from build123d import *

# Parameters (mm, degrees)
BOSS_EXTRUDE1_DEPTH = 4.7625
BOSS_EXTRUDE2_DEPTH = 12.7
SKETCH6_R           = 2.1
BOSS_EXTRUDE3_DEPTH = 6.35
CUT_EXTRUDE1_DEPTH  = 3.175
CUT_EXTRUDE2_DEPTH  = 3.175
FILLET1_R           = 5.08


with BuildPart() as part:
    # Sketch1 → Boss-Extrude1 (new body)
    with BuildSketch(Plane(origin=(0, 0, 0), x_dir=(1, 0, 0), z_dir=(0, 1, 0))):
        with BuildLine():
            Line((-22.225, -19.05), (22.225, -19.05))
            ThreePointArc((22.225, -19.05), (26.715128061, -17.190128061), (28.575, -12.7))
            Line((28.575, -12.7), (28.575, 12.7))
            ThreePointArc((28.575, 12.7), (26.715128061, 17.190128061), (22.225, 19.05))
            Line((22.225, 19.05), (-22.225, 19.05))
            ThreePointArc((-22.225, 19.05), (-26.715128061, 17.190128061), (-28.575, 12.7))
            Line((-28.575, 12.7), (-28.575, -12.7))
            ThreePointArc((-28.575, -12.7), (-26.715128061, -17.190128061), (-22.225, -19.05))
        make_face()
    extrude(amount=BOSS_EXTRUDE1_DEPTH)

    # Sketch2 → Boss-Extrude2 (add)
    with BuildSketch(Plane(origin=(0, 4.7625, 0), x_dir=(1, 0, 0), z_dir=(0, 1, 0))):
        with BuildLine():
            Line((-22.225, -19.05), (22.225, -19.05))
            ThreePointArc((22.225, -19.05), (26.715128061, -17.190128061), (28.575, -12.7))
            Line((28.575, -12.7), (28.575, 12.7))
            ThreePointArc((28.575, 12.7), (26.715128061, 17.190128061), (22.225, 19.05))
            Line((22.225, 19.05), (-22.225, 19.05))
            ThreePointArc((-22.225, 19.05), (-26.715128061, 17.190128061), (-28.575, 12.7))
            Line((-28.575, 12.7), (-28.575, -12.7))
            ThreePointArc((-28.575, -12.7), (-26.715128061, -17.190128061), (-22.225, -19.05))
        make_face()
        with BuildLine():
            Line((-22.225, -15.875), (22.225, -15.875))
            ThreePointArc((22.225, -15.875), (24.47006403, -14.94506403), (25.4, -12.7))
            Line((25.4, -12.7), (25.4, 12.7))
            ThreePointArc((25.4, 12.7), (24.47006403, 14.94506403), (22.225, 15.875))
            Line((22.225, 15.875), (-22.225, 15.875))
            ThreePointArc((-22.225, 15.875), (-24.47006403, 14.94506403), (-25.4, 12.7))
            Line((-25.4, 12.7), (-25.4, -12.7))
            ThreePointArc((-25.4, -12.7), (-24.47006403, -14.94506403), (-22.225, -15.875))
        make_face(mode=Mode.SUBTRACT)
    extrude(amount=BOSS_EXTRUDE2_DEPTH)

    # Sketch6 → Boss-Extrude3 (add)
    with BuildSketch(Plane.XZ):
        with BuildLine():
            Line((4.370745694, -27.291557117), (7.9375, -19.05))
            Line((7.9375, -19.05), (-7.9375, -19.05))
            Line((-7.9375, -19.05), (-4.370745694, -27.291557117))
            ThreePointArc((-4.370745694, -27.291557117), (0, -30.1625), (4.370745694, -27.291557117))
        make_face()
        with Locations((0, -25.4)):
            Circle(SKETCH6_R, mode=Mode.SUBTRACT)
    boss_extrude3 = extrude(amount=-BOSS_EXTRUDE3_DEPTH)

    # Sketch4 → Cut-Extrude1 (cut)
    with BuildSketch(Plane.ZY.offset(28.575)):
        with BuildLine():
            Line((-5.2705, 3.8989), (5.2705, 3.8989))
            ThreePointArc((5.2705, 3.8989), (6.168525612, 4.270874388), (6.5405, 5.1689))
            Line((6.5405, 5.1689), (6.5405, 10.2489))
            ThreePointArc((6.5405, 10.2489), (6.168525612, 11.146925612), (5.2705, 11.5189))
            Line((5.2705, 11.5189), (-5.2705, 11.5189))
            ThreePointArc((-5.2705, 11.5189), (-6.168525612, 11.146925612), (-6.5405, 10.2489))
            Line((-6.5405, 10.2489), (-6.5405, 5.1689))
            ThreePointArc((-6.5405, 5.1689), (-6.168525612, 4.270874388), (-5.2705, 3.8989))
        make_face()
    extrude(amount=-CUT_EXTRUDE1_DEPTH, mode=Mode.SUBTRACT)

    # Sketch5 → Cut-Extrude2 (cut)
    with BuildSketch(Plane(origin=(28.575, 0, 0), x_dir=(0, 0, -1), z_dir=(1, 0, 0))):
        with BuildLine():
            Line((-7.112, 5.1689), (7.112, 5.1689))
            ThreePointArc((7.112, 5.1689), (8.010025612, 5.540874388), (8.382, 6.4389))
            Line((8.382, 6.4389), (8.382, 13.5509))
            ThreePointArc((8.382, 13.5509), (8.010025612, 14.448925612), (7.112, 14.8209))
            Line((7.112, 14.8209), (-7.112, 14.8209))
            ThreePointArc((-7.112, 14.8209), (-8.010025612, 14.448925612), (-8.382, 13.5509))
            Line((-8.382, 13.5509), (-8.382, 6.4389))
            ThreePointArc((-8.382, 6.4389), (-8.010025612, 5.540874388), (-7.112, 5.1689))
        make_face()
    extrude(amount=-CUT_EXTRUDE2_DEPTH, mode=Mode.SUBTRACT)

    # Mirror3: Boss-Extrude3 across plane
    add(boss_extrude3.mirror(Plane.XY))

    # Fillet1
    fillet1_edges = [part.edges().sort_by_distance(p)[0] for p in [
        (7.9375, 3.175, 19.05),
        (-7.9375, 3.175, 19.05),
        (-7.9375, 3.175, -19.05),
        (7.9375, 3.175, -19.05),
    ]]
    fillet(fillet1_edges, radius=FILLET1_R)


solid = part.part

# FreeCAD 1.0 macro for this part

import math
import FreeCAD as App
import Part
import Sketcher

V = App.Vector
Q = App.Units.Quantity


def edges_at(feature, points):
    """Names of the edges that pass closest to the given points."""
    edges = feature.Shape.Edges
    near = lambda p: min(range(len(edges)), key=lambda i: edges[i].distToShape(Part.Vertex(*p))[0])
    return sorted({f"Edge{near(p) + 1}" for p in points})

doc = App.newDocument("Part")
params = doc.addObject("Spreadsheet::Sheet", "Params")
for row, (alias, value) in enumerate([
    ("sketch1_height", "1 in"),
    ("sketch1_radius", "0.25 in"),
    ("pad1_length", "0.1875 in"),
    ("sketch2_height", "1 in"),
    ("sketch2_radius", "0.25 in"),
    ("sketch2_radius2", "0.125 in"),
    ("pad2_length", "0.5 in"),
    ("sketch3_radius", "0.1875 in"),
    ("sketch3_width", "0.625 in"),
    ("pad3_length", "0.25 in"),
    ("sketch4_radius", "0.05 in"),
    ("sketch4_width", "0.2 in"),
    ("sketch4_height", "0.415 in"),
    ("pocket1_length", "0.125 in"),
    ("sketch5_radius", "0.05 in"),
    ("sketch5_width", "0.28 in"),
    ("sketch5_height", "0.56 in"),
    ("pocket2_length", "0.125 in"),
    ("fillet_radius", "0.2 in"),
], start=1):
    params.set(f"A{row}", alias)
    params.set(f"B{row}", "=" + value)
    params.setAlias(f"B{row}", alias)

body = doc.addObject("PartDesign::Body", "Body")

sketch1 = body.newObject("Sketcher::SketchObject", "Sketch")
sketch1.AttachmentSupport = (doc.getObject("XZ_Plane"), [""])
sketch1.MapMode = "FlatFace"
sketch1.addGeometry(Part.LineSegment(V(-22, 19, 0), V(22, 19, 0)), False)
sketch1.addGeometry(Part.ArcOfCircle(Part.Circle(V(22, 13, 0), V(0, 0, 1), 6), math.radians(0), math.radians(90)), False)
sketch1.addGeometry(Part.LineSegment(V(29, 13, 0), V(29, -13, 0)), False)
sketch1.addGeometry(Part.ArcOfCircle(Part.Circle(V(22, -13, 0), V(0, 0, 1), 6), math.radians(-90), math.radians(0)), False)
sketch1.addGeometry(Part.LineSegment(V(22, -19, 0), V(-22, -19, 0)), False)
sketch1.addGeometry(Part.ArcOfCircle(Part.Circle(V(-22, -13, 0), V(0, 0, 1), 6), math.radians(180), math.radians(270)), False)
sketch1.addGeometry(Part.LineSegment(V(-29, -13, 0), V(-29, 13, 0)), False)
sketch1.addGeometry(Part.ArcOfCircle(Part.Circle(V(-22, 13, 0), V(0, 0, 1), 6), math.radians(90), math.radians(180)), False)
sketch1.addConstraint(Sketcher.Constraint("Tangent", 0, 2, 1, 2))
sketch1.addConstraint(Sketcher.Constraint("Tangent", 1, 1, 2, 1))
sketch1.addConstraint(Sketcher.Constraint("Tangent", 2, 2, 3, 2))
sketch1.addConstraint(Sketcher.Constraint("Tangent", 3, 1, 4, 1))
sketch1.addConstraint(Sketcher.Constraint("Tangent", 4, 2, 5, 2))
sketch1.addConstraint(Sketcher.Constraint("Tangent", 5, 1, 6, 1))
sketch1.addConstraint(Sketcher.Constraint("Tangent", 6, 2, 7, 2))
sketch1.addConstraint(Sketcher.Constraint("Tangent", 7, 1, 0, 1))
sketch1.addConstraint(Sketcher.Constraint("Horizontal", 0))
sketch1.addConstraint(Sketcher.Constraint("Vertical", 2))
sketch1.addConstraint(Sketcher.Constraint("Horizontal", 4))
sketch1.addConstraint(Sketcher.Constraint("Vertical", 6))
sketch1.addConstraint(Sketcher.Constraint("Equal", 1, 3))
sketch1.addConstraint(Sketcher.Constraint("Equal", 3, 5))
sketch1.addConstraint(Sketcher.Constraint("Equal", 5, 7))
sketch1.addConstraint(Sketcher.Constraint("Symmetric", 1, 3, 5, 3, -1, 1))
sketch1.addConstraint(Sketcher.Constraint("DistanceY", 2, 2, 2, 1, Q("1 in")))
sketch1.addConstraint(Sketcher.Constraint("Radius", 1, Q("0.25 in")))
sketch1.addConstraint(Sketcher.Constraint("DistanceX", 7, 3, 1, 1, Q("2 in")))
sketch1.setExpression("Constraints[16]", "Params.sketch1_height")
sketch1.setExpression("Constraints[17]", "Params.sketch1_radius")
pad1 = body.newObject("PartDesign::Pad", "Pad")
pad1.Profile = sketch1
pad1.setExpression("Length", "Params.pad1_length")
pad1.Reversed = True

sketch2 = body.newObject("Sketcher::SketchObject", "Sketch001")
sketch2.AttachmentSupport = (doc.getObject("XZ_Plane"), [""])
sketch2.MapMode = "FlatFace"
sketch2.AttachmentOffset = App.Placement(V(0, 0, -0.1875 * 25.4), App.Rotation())
sketch2.addGeometry(Part.LineSegment(V(-22.2, 19.1, 0), V(22.2, 19.1, 0)), False)
sketch2.addGeometry(Part.ArcOfCircle(Part.Circle(V(22.2, 12.7, 0), V(0, 0, 1), 6.3), math.radians(0), math.radians(90)), False)
sketch2.addGeometry(Part.LineSegment(V(28.6, 12.7, 0), V(28.6, -12.7, 0)), False)
sketch2.addGeometry(Part.ArcOfCircle(Part.Circle(V(22.2, -12.7, 0), V(0, 0, 1), 6.3), math.radians(-90), math.radians(0)), False)
sketch2.addGeometry(Part.LineSegment(V(22.2, -19.1, 0), V(-22.2, -19.1, 0)), False)
sketch2.addGeometry(Part.ArcOfCircle(Part.Circle(V(-22.2, -12.7, 0), V(0, 0, 1), 6.3), math.radians(180), math.radians(270)), False)
sketch2.addGeometry(Part.LineSegment(V(-28.6, -12.7, 0), V(-28.6, 12.7, 0)), False)
sketch2.addGeometry(Part.ArcOfCircle(Part.Circle(V(-22.2, 12.7, 0), V(0, 0, 1), 6.3), math.radians(90), math.radians(180)), False)
sketch2.addGeometry(Part.LineSegment(V(22.2, 15.9, 0), V(-22.2, 15.9, 0)), False)
sketch2.addGeometry(Part.ArcOfCircle(Part.Circle(V(-22.2, 12.7, 0), V(0, 0, 1), 3.2), math.radians(90), math.radians(180)), False)
sketch2.addGeometry(Part.LineSegment(V(-25.4, 12.7, 0), V(-25.4, -12.7, 0)), False)
sketch2.addGeometry(Part.ArcOfCircle(Part.Circle(V(-22.2, -12.7, 0), V(0, 0, 1), 3.2), math.radians(-180), math.radians(-90)), False)
sketch2.addGeometry(Part.LineSegment(V(-22.2, -15.9, 0), V(22.2, -15.9, 0)), False)
sketch2.addGeometry(Part.ArcOfCircle(Part.Circle(V(22.2, -12.7, 0), V(0, 0, 1), 3.2), math.radians(-90), math.radians(0)), False)
sketch2.addGeometry(Part.LineSegment(V(25.4, -12.7, 0), V(25.4, 12.7, 0)), False)
sketch2.addGeometry(Part.ArcOfCircle(Part.Circle(V(22.2, 12.7, 0), V(0, 0, 1), 3.2), math.radians(0), math.radians(90)), False)
sketch2.addConstraint(Sketcher.Constraint("Tangent", 0, 2, 1, 2))
sketch2.addConstraint(Sketcher.Constraint("Tangent", 1, 1, 2, 1))
sketch2.addConstraint(Sketcher.Constraint("Tangent", 2, 2, 3, 2))
sketch2.addConstraint(Sketcher.Constraint("Tangent", 3, 1, 4, 1))
sketch2.addConstraint(Sketcher.Constraint("Tangent", 4, 2, 5, 2))
sketch2.addConstraint(Sketcher.Constraint("Tangent", 5, 1, 6, 1))
sketch2.addConstraint(Sketcher.Constraint("Tangent", 6, 2, 7, 2))
sketch2.addConstraint(Sketcher.Constraint("Tangent", 7, 1, 0, 1))
sketch2.addConstraint(Sketcher.Constraint("Tangent", 8, 2, 9, 1))
sketch2.addConstraint(Sketcher.Constraint("Tangent", 9, 2, 10, 1))
sketch2.addConstraint(Sketcher.Constraint("Tangent", 10, 2, 11, 1))
sketch2.addConstraint(Sketcher.Constraint("Tangent", 11, 2, 12, 1))
sketch2.addConstraint(Sketcher.Constraint("Tangent", 12, 2, 13, 1))
sketch2.addConstraint(Sketcher.Constraint("Tangent", 13, 2, 14, 1))
sketch2.addConstraint(Sketcher.Constraint("Tangent", 14, 2, 15, 1))
sketch2.addConstraint(Sketcher.Constraint("Tangent", 15, 2, 8, 1))
sketch2.addConstraint(Sketcher.Constraint("Horizontal", 0))
sketch2.addConstraint(Sketcher.Constraint("Vertical", 2))
sketch2.addConstraint(Sketcher.Constraint("Horizontal", 4))
sketch2.addConstraint(Sketcher.Constraint("Vertical", 6))
sketch2.addConstraint(Sketcher.Constraint("Horizontal", 8))
sketch2.addConstraint(Sketcher.Constraint("Vertical", 10))
sketch2.addConstraint(Sketcher.Constraint("Horizontal", 12))
sketch2.addConstraint(Sketcher.Constraint("Vertical", 14))
sketch2.addConstraint(Sketcher.Constraint("Coincident", 9, 3, 7, 3))
sketch2.addConstraint(Sketcher.Constraint("Coincident", 11, 3, 5, 3))
sketch2.addConstraint(Sketcher.Constraint("Coincident", 13, 3, 3, 3))
sketch2.addConstraint(Sketcher.Constraint("Equal", 1, 3))
sketch2.addConstraint(Sketcher.Constraint("Equal", 3, 5))
sketch2.addConstraint(Sketcher.Constraint("Equal", 5, 7))
sketch2.addConstraint(Sketcher.Constraint("Equal", 13, 15))
sketch2.addConstraint(Sketcher.Constraint("Symmetric", 1, 3, 5, 3, -1, 1))
sketch2.addConstraint(Sketcher.Constraint("DistanceY", 2, 2, 2, 1, Q("1 in")))
sketch2.addConstraint(Sketcher.Constraint("Radius", 1, Q("0.25 in")))
sketch2.addConstraint(Sketcher.Constraint("DistanceX", 9, 2, -1, 1, Q("1 in")))
sketch2.addConstraint(Sketcher.Constraint("Radius", 9, Q("0.125 in")))
sketch2.setExpression("Constraints[32]", "Params.sketch2_height")
sketch2.setExpression("Constraints[33]", "Params.sketch2_radius")
sketch2.setExpression("Constraints[35]", "Params.sketch2_radius2")
pad2 = body.newObject("PartDesign::Pad", "Pad001")
pad2.Profile = sketch2
pad2.setExpression("Length", "Params.pad2_length")
pad2.Reversed = True

sketch3 = body.newObject("Sketcher::SketchObject", "Sketch002")
sketch3.AttachmentSupport = (doc.getObject("XZ_Plane"), [""])
sketch3.MapMode = "FlatFace"
sketch3.addGeometry(Part.LineSegment(V(4.4, -27.3, 0), V(7.9, -19.1, 0)), False)
sketch3.addGeometry(Part.LineSegment(V(7.9, -19.1, 0), V(-7.9, -19.1, 0)), False)
sketch3.addGeometry(Part.LineSegment(V(-7.9, -19.1, 0), V(-4.4, -27.3, 0)), False)
sketch3.addGeometry(Part.ArcOfCircle(Part.Circle(V(0, -25.4, 0), V(0, 0, 1), 4.8), math.radians(-157), math.radians(-23)), False)
sketch3.addGeometry(Part.Circle(V(0, -25.4, 0), V(0, 0, 1), 2.1), False)
sketch3.addConstraint(Sketcher.Constraint("Coincident", 0, 2, 1, 1))
sketch3.addConstraint(Sketcher.Constraint("Coincident", 1, 2, 2, 1))
sketch3.addConstraint(Sketcher.Constraint("Tangent", 2, 2, 3, 1))
sketch3.addConstraint(Sketcher.Constraint("Tangent", 3, 2, 0, 1))
sketch3.addConstraint(Sketcher.Constraint("Horizontal", 1))
sketch3.addConstraint(Sketcher.Constraint("Coincident", 4, 3, 3, 3))
sketch3.addConstraint(Sketcher.Constraint("Symmetric", 2, 2, 3, 2, -2))
sketch3.addConstraint(Sketcher.Constraint("DistanceY", 3, 3, -1, 1, Q("1 in")))
sketch3.addConstraint(Sketcher.Constraint("Radius", 3, Q("0.1875 in")))
sketch3.addConstraint(Sketcher.Constraint("Diameter", 4, 4.2))
sketch3.addConstraint(Sketcher.Constraint("DistanceX", 1, 2, 1, 1, Q("0.625 in")))
sketch3.addConstraint(Sketcher.Constraint("DistanceY", 0, 2, -1, 1, Q("0.75 in")))
sketch3.setExpression("Constraints[8]", "Params.sketch3_radius")
sketch3.setExpression("Constraints[10]", "Params.sketch3_width")
pad3 = body.newObject("PartDesign::Pad", "Pad002")
pad3.Profile = sketch3
pad3.setExpression("Length", "Params.pad3_length")
pad3.Reversed = True

sketch4 = body.newObject("Sketcher::SketchObject", "Sketch003")
sketch4.AttachmentSupport = (doc.getObject("YZ_Plane"), [""])
sketch4.MapMode = "FlatFace"
sketch4.AttachmentOffset = App.Placement(V(0, 0, -1.125 * 25.4), App.Rotation())
sketch4.addGeometry(Part.LineSegment(V(3.9, -5.3, 0), V(3.9, 5.3, 0)), False)
sketch4.addGeometry(Part.ArcOfCircle(Part.Circle(V(5.2, 5.3, 0), V(0, 0, 1), 1.3), math.radians(90), math.radians(180)), False)
sketch4.addGeometry(Part.LineSegment(V(5.2, 6.5, 0), V(10.2, 6.5, 0)), False)
sketch4.addGeometry(Part.ArcOfCircle(Part.Circle(V(10.2, 5.3, 0), V(0, 0, 1), 1.3), math.radians(0), math.radians(90)), False)
sketch4.addGeometry(Part.LineSegment(V(11.5, 5.3, 0), V(11.5, -5.3, 0)), False)
sketch4.addGeometry(Part.ArcOfCircle(Part.Circle(V(10.2, -5.3, 0), V(0, 0, 1), 1.3), math.radians(-90), math.radians(0)), False)
sketch4.addGeometry(Part.LineSegment(V(10.2, -6.5, 0), V(5.2, -6.5, 0)), False)
sketch4.addGeometry(Part.ArcOfCircle(Part.Circle(V(5.2, -5.3, 0), V(0, 0, 1), 1.3), math.radians(180), math.radians(270)), False)
sketch4.addConstraint(Sketcher.Constraint("Tangent", 0, 2, 1, 2))
sketch4.addConstraint(Sketcher.Constraint("Tangent", 1, 1, 2, 1))
sketch4.addConstraint(Sketcher.Constraint("Tangent", 2, 2, 3, 2))
sketch4.addConstraint(Sketcher.Constraint("Tangent", 3, 1, 4, 1))
sketch4.addConstraint(Sketcher.Constraint("Tangent", 4, 2, 5, 2))
sketch4.addConstraint(Sketcher.Constraint("Tangent", 5, 1, 6, 1))
sketch4.addConstraint(Sketcher.Constraint("Tangent", 6, 2, 7, 2))
sketch4.addConstraint(Sketcher.Constraint("Tangent", 7, 1, 0, 1))
sketch4.addConstraint(Sketcher.Constraint("Vertical", 0))
sketch4.addConstraint(Sketcher.Constraint("Horizontal", 2))
sketch4.addConstraint(Sketcher.Constraint("Vertical", 4))
sketch4.addConstraint(Sketcher.Constraint("Horizontal", 6))
sketch4.addConstraint(Sketcher.Constraint("Equal", 1, 3))
sketch4.addConstraint(Sketcher.Constraint("Equal", 3, 5))
sketch4.addConstraint(Sketcher.Constraint("Equal", 5, 7))
sketch4.addConstraint(Sketcher.Constraint("Radius", 1, Q("0.05 in")))
sketch4.addConstraint(Sketcher.Constraint("DistanceX", 2, 1, 2, 2, Q("0.2 in")))
sketch4.addConstraint(Sketcher.Constraint("DistanceY", 0, 1, 0, 2, Q("0.415 in")))
sketch4.addConstraint(Sketcher.Constraint("DistanceX", -1, 1, 1, 3, Q("0.2035 in")))
sketch4.addConstraint(Sketcher.Constraint("DistanceY", -1, 1, 1, 3, Q("0.2075 in")))
sketch4.setExpression("Constraints[15]", "Params.sketch4_radius")
sketch4.setExpression("Constraints[16]", "Params.sketch4_width")
sketch4.setExpression("Constraints[17]", "Params.sketch4_height")
pocket1 = body.newObject("PartDesign::Pocket", "Pocket")
pocket1.Profile = sketch4
pocket1.setExpression("Length", "Params.pocket1_length")
pocket1.Reversed = True

sketch5 = body.newObject("Sketcher::SketchObject", "Sketch004")
sketch5.AttachmentSupport = (doc.getObject("YZ_Plane"), [""])
sketch5.MapMode = "FlatFace"
sketch5.AttachmentOffset = App.Placement(V(0, 0, 1.125 * 25.4), App.Rotation())
sketch5.addGeometry(Part.LineSegment(V(5.2, 7.1, 0), V(5.2, -7.1, 0)), False)
sketch5.addGeometry(Part.ArcOfCircle(Part.Circle(V(6.4, -7.1, 0), V(0, 0, 1), 1.3), math.radians(180), math.radians(270)), False)
sketch5.addGeometry(Part.LineSegment(V(6.4, -8.4, 0), V(13.6, -8.4, 0)), False)
sketch5.addGeometry(Part.ArcOfCircle(Part.Circle(V(13.6, -7.1, 0), V(0, 0, 1), 1.3), math.radians(-90), math.radians(0)), False)
sketch5.addGeometry(Part.LineSegment(V(14.8, -7.1, 0), V(14.8, 7.1, 0)), False)
sketch5.addGeometry(Part.ArcOfCircle(Part.Circle(V(13.6, 7.1, 0), V(0, 0, 1), 1.3), math.radians(0), math.radians(90)), False)
sketch5.addGeometry(Part.LineSegment(V(13.6, 8.4, 0), V(6.4, 8.4, 0)), False)
sketch5.addGeometry(Part.ArcOfCircle(Part.Circle(V(6.4, 7.1, 0), V(0, 0, 1), 1.3), math.radians(90), math.radians(180)), False)
sketch5.addConstraint(Sketcher.Constraint("Tangent", 0, 2, 1, 1))
sketch5.addConstraint(Sketcher.Constraint("Tangent", 1, 2, 2, 1))
sketch5.addConstraint(Sketcher.Constraint("Tangent", 2, 2, 3, 1))
sketch5.addConstraint(Sketcher.Constraint("Tangent", 3, 2, 4, 1))
sketch5.addConstraint(Sketcher.Constraint("Tangent", 4, 2, 5, 1))
sketch5.addConstraint(Sketcher.Constraint("Tangent", 5, 2, 6, 1))
sketch5.addConstraint(Sketcher.Constraint("Tangent", 6, 2, 7, 1))
sketch5.addConstraint(Sketcher.Constraint("Tangent", 7, 2, 0, 1))
sketch5.addConstraint(Sketcher.Constraint("Vertical", 0))
sketch5.addConstraint(Sketcher.Constraint("Horizontal", 2))
sketch5.addConstraint(Sketcher.Constraint("Vertical", 4))
sketch5.addConstraint(Sketcher.Constraint("Horizontal", 6))
sketch5.addConstraint(Sketcher.Constraint("Equal", 1, 3))
sketch5.addConstraint(Sketcher.Constraint("Equal", 3, 5))
sketch5.addConstraint(Sketcher.Constraint("Equal", 5, 7))
sketch5.addConstraint(Sketcher.Constraint("Radius", 1, Q("0.05 in")))
sketch5.addConstraint(Sketcher.Constraint("DistanceX", 2, 1, 2, 2, Q("0.28 in")))
sketch5.addConstraint(Sketcher.Constraint("DistanceY", 0, 2, 0, 1, Q("0.56 in")))
sketch5.addConstraint(Sketcher.Constraint("DistanceY", 1, 3, -1, 1, Q("0.28 in")))
sketch5.addConstraint(Sketcher.Constraint("DistanceX", -1, 1, 1, 3, Q("0.2535 in")))
sketch5.setExpression("Constraints[15]", "Params.sketch5_radius")
sketch5.setExpression("Constraints[16]", "Params.sketch5_width")
sketch5.setExpression("Constraints[17]", "Params.sketch5_height")
pocket2 = body.newObject("PartDesign::Pocket", "Pocket001")
pocket2.Profile = sketch5
pocket2.setExpression("Length", "Params.pocket2_length")
doc.recompute()

mirrored = body.newObject("PartDesign::Mirrored", "Mirrored")
mirrored.Originals = [pad3]
mirrored.MirrorPlane = (doc.getObject("XY_Plane"), [""])
body.Tip = mirrored
doc.recompute()

fillet = body.newObject("PartDesign::Fillet", "Fillet")
fillet.Base = (mirrored, edges_at(mirrored, [
    (7.938, 3.175, 19.05),
    (-7.938, 3.175, 19.05),
    (-7.938, 3.175, -19.05),
    (7.938, 3.175, -19.05),
]))
fillet.setExpression("Radius", "Params.fillet_radius")

doc.recompute()
